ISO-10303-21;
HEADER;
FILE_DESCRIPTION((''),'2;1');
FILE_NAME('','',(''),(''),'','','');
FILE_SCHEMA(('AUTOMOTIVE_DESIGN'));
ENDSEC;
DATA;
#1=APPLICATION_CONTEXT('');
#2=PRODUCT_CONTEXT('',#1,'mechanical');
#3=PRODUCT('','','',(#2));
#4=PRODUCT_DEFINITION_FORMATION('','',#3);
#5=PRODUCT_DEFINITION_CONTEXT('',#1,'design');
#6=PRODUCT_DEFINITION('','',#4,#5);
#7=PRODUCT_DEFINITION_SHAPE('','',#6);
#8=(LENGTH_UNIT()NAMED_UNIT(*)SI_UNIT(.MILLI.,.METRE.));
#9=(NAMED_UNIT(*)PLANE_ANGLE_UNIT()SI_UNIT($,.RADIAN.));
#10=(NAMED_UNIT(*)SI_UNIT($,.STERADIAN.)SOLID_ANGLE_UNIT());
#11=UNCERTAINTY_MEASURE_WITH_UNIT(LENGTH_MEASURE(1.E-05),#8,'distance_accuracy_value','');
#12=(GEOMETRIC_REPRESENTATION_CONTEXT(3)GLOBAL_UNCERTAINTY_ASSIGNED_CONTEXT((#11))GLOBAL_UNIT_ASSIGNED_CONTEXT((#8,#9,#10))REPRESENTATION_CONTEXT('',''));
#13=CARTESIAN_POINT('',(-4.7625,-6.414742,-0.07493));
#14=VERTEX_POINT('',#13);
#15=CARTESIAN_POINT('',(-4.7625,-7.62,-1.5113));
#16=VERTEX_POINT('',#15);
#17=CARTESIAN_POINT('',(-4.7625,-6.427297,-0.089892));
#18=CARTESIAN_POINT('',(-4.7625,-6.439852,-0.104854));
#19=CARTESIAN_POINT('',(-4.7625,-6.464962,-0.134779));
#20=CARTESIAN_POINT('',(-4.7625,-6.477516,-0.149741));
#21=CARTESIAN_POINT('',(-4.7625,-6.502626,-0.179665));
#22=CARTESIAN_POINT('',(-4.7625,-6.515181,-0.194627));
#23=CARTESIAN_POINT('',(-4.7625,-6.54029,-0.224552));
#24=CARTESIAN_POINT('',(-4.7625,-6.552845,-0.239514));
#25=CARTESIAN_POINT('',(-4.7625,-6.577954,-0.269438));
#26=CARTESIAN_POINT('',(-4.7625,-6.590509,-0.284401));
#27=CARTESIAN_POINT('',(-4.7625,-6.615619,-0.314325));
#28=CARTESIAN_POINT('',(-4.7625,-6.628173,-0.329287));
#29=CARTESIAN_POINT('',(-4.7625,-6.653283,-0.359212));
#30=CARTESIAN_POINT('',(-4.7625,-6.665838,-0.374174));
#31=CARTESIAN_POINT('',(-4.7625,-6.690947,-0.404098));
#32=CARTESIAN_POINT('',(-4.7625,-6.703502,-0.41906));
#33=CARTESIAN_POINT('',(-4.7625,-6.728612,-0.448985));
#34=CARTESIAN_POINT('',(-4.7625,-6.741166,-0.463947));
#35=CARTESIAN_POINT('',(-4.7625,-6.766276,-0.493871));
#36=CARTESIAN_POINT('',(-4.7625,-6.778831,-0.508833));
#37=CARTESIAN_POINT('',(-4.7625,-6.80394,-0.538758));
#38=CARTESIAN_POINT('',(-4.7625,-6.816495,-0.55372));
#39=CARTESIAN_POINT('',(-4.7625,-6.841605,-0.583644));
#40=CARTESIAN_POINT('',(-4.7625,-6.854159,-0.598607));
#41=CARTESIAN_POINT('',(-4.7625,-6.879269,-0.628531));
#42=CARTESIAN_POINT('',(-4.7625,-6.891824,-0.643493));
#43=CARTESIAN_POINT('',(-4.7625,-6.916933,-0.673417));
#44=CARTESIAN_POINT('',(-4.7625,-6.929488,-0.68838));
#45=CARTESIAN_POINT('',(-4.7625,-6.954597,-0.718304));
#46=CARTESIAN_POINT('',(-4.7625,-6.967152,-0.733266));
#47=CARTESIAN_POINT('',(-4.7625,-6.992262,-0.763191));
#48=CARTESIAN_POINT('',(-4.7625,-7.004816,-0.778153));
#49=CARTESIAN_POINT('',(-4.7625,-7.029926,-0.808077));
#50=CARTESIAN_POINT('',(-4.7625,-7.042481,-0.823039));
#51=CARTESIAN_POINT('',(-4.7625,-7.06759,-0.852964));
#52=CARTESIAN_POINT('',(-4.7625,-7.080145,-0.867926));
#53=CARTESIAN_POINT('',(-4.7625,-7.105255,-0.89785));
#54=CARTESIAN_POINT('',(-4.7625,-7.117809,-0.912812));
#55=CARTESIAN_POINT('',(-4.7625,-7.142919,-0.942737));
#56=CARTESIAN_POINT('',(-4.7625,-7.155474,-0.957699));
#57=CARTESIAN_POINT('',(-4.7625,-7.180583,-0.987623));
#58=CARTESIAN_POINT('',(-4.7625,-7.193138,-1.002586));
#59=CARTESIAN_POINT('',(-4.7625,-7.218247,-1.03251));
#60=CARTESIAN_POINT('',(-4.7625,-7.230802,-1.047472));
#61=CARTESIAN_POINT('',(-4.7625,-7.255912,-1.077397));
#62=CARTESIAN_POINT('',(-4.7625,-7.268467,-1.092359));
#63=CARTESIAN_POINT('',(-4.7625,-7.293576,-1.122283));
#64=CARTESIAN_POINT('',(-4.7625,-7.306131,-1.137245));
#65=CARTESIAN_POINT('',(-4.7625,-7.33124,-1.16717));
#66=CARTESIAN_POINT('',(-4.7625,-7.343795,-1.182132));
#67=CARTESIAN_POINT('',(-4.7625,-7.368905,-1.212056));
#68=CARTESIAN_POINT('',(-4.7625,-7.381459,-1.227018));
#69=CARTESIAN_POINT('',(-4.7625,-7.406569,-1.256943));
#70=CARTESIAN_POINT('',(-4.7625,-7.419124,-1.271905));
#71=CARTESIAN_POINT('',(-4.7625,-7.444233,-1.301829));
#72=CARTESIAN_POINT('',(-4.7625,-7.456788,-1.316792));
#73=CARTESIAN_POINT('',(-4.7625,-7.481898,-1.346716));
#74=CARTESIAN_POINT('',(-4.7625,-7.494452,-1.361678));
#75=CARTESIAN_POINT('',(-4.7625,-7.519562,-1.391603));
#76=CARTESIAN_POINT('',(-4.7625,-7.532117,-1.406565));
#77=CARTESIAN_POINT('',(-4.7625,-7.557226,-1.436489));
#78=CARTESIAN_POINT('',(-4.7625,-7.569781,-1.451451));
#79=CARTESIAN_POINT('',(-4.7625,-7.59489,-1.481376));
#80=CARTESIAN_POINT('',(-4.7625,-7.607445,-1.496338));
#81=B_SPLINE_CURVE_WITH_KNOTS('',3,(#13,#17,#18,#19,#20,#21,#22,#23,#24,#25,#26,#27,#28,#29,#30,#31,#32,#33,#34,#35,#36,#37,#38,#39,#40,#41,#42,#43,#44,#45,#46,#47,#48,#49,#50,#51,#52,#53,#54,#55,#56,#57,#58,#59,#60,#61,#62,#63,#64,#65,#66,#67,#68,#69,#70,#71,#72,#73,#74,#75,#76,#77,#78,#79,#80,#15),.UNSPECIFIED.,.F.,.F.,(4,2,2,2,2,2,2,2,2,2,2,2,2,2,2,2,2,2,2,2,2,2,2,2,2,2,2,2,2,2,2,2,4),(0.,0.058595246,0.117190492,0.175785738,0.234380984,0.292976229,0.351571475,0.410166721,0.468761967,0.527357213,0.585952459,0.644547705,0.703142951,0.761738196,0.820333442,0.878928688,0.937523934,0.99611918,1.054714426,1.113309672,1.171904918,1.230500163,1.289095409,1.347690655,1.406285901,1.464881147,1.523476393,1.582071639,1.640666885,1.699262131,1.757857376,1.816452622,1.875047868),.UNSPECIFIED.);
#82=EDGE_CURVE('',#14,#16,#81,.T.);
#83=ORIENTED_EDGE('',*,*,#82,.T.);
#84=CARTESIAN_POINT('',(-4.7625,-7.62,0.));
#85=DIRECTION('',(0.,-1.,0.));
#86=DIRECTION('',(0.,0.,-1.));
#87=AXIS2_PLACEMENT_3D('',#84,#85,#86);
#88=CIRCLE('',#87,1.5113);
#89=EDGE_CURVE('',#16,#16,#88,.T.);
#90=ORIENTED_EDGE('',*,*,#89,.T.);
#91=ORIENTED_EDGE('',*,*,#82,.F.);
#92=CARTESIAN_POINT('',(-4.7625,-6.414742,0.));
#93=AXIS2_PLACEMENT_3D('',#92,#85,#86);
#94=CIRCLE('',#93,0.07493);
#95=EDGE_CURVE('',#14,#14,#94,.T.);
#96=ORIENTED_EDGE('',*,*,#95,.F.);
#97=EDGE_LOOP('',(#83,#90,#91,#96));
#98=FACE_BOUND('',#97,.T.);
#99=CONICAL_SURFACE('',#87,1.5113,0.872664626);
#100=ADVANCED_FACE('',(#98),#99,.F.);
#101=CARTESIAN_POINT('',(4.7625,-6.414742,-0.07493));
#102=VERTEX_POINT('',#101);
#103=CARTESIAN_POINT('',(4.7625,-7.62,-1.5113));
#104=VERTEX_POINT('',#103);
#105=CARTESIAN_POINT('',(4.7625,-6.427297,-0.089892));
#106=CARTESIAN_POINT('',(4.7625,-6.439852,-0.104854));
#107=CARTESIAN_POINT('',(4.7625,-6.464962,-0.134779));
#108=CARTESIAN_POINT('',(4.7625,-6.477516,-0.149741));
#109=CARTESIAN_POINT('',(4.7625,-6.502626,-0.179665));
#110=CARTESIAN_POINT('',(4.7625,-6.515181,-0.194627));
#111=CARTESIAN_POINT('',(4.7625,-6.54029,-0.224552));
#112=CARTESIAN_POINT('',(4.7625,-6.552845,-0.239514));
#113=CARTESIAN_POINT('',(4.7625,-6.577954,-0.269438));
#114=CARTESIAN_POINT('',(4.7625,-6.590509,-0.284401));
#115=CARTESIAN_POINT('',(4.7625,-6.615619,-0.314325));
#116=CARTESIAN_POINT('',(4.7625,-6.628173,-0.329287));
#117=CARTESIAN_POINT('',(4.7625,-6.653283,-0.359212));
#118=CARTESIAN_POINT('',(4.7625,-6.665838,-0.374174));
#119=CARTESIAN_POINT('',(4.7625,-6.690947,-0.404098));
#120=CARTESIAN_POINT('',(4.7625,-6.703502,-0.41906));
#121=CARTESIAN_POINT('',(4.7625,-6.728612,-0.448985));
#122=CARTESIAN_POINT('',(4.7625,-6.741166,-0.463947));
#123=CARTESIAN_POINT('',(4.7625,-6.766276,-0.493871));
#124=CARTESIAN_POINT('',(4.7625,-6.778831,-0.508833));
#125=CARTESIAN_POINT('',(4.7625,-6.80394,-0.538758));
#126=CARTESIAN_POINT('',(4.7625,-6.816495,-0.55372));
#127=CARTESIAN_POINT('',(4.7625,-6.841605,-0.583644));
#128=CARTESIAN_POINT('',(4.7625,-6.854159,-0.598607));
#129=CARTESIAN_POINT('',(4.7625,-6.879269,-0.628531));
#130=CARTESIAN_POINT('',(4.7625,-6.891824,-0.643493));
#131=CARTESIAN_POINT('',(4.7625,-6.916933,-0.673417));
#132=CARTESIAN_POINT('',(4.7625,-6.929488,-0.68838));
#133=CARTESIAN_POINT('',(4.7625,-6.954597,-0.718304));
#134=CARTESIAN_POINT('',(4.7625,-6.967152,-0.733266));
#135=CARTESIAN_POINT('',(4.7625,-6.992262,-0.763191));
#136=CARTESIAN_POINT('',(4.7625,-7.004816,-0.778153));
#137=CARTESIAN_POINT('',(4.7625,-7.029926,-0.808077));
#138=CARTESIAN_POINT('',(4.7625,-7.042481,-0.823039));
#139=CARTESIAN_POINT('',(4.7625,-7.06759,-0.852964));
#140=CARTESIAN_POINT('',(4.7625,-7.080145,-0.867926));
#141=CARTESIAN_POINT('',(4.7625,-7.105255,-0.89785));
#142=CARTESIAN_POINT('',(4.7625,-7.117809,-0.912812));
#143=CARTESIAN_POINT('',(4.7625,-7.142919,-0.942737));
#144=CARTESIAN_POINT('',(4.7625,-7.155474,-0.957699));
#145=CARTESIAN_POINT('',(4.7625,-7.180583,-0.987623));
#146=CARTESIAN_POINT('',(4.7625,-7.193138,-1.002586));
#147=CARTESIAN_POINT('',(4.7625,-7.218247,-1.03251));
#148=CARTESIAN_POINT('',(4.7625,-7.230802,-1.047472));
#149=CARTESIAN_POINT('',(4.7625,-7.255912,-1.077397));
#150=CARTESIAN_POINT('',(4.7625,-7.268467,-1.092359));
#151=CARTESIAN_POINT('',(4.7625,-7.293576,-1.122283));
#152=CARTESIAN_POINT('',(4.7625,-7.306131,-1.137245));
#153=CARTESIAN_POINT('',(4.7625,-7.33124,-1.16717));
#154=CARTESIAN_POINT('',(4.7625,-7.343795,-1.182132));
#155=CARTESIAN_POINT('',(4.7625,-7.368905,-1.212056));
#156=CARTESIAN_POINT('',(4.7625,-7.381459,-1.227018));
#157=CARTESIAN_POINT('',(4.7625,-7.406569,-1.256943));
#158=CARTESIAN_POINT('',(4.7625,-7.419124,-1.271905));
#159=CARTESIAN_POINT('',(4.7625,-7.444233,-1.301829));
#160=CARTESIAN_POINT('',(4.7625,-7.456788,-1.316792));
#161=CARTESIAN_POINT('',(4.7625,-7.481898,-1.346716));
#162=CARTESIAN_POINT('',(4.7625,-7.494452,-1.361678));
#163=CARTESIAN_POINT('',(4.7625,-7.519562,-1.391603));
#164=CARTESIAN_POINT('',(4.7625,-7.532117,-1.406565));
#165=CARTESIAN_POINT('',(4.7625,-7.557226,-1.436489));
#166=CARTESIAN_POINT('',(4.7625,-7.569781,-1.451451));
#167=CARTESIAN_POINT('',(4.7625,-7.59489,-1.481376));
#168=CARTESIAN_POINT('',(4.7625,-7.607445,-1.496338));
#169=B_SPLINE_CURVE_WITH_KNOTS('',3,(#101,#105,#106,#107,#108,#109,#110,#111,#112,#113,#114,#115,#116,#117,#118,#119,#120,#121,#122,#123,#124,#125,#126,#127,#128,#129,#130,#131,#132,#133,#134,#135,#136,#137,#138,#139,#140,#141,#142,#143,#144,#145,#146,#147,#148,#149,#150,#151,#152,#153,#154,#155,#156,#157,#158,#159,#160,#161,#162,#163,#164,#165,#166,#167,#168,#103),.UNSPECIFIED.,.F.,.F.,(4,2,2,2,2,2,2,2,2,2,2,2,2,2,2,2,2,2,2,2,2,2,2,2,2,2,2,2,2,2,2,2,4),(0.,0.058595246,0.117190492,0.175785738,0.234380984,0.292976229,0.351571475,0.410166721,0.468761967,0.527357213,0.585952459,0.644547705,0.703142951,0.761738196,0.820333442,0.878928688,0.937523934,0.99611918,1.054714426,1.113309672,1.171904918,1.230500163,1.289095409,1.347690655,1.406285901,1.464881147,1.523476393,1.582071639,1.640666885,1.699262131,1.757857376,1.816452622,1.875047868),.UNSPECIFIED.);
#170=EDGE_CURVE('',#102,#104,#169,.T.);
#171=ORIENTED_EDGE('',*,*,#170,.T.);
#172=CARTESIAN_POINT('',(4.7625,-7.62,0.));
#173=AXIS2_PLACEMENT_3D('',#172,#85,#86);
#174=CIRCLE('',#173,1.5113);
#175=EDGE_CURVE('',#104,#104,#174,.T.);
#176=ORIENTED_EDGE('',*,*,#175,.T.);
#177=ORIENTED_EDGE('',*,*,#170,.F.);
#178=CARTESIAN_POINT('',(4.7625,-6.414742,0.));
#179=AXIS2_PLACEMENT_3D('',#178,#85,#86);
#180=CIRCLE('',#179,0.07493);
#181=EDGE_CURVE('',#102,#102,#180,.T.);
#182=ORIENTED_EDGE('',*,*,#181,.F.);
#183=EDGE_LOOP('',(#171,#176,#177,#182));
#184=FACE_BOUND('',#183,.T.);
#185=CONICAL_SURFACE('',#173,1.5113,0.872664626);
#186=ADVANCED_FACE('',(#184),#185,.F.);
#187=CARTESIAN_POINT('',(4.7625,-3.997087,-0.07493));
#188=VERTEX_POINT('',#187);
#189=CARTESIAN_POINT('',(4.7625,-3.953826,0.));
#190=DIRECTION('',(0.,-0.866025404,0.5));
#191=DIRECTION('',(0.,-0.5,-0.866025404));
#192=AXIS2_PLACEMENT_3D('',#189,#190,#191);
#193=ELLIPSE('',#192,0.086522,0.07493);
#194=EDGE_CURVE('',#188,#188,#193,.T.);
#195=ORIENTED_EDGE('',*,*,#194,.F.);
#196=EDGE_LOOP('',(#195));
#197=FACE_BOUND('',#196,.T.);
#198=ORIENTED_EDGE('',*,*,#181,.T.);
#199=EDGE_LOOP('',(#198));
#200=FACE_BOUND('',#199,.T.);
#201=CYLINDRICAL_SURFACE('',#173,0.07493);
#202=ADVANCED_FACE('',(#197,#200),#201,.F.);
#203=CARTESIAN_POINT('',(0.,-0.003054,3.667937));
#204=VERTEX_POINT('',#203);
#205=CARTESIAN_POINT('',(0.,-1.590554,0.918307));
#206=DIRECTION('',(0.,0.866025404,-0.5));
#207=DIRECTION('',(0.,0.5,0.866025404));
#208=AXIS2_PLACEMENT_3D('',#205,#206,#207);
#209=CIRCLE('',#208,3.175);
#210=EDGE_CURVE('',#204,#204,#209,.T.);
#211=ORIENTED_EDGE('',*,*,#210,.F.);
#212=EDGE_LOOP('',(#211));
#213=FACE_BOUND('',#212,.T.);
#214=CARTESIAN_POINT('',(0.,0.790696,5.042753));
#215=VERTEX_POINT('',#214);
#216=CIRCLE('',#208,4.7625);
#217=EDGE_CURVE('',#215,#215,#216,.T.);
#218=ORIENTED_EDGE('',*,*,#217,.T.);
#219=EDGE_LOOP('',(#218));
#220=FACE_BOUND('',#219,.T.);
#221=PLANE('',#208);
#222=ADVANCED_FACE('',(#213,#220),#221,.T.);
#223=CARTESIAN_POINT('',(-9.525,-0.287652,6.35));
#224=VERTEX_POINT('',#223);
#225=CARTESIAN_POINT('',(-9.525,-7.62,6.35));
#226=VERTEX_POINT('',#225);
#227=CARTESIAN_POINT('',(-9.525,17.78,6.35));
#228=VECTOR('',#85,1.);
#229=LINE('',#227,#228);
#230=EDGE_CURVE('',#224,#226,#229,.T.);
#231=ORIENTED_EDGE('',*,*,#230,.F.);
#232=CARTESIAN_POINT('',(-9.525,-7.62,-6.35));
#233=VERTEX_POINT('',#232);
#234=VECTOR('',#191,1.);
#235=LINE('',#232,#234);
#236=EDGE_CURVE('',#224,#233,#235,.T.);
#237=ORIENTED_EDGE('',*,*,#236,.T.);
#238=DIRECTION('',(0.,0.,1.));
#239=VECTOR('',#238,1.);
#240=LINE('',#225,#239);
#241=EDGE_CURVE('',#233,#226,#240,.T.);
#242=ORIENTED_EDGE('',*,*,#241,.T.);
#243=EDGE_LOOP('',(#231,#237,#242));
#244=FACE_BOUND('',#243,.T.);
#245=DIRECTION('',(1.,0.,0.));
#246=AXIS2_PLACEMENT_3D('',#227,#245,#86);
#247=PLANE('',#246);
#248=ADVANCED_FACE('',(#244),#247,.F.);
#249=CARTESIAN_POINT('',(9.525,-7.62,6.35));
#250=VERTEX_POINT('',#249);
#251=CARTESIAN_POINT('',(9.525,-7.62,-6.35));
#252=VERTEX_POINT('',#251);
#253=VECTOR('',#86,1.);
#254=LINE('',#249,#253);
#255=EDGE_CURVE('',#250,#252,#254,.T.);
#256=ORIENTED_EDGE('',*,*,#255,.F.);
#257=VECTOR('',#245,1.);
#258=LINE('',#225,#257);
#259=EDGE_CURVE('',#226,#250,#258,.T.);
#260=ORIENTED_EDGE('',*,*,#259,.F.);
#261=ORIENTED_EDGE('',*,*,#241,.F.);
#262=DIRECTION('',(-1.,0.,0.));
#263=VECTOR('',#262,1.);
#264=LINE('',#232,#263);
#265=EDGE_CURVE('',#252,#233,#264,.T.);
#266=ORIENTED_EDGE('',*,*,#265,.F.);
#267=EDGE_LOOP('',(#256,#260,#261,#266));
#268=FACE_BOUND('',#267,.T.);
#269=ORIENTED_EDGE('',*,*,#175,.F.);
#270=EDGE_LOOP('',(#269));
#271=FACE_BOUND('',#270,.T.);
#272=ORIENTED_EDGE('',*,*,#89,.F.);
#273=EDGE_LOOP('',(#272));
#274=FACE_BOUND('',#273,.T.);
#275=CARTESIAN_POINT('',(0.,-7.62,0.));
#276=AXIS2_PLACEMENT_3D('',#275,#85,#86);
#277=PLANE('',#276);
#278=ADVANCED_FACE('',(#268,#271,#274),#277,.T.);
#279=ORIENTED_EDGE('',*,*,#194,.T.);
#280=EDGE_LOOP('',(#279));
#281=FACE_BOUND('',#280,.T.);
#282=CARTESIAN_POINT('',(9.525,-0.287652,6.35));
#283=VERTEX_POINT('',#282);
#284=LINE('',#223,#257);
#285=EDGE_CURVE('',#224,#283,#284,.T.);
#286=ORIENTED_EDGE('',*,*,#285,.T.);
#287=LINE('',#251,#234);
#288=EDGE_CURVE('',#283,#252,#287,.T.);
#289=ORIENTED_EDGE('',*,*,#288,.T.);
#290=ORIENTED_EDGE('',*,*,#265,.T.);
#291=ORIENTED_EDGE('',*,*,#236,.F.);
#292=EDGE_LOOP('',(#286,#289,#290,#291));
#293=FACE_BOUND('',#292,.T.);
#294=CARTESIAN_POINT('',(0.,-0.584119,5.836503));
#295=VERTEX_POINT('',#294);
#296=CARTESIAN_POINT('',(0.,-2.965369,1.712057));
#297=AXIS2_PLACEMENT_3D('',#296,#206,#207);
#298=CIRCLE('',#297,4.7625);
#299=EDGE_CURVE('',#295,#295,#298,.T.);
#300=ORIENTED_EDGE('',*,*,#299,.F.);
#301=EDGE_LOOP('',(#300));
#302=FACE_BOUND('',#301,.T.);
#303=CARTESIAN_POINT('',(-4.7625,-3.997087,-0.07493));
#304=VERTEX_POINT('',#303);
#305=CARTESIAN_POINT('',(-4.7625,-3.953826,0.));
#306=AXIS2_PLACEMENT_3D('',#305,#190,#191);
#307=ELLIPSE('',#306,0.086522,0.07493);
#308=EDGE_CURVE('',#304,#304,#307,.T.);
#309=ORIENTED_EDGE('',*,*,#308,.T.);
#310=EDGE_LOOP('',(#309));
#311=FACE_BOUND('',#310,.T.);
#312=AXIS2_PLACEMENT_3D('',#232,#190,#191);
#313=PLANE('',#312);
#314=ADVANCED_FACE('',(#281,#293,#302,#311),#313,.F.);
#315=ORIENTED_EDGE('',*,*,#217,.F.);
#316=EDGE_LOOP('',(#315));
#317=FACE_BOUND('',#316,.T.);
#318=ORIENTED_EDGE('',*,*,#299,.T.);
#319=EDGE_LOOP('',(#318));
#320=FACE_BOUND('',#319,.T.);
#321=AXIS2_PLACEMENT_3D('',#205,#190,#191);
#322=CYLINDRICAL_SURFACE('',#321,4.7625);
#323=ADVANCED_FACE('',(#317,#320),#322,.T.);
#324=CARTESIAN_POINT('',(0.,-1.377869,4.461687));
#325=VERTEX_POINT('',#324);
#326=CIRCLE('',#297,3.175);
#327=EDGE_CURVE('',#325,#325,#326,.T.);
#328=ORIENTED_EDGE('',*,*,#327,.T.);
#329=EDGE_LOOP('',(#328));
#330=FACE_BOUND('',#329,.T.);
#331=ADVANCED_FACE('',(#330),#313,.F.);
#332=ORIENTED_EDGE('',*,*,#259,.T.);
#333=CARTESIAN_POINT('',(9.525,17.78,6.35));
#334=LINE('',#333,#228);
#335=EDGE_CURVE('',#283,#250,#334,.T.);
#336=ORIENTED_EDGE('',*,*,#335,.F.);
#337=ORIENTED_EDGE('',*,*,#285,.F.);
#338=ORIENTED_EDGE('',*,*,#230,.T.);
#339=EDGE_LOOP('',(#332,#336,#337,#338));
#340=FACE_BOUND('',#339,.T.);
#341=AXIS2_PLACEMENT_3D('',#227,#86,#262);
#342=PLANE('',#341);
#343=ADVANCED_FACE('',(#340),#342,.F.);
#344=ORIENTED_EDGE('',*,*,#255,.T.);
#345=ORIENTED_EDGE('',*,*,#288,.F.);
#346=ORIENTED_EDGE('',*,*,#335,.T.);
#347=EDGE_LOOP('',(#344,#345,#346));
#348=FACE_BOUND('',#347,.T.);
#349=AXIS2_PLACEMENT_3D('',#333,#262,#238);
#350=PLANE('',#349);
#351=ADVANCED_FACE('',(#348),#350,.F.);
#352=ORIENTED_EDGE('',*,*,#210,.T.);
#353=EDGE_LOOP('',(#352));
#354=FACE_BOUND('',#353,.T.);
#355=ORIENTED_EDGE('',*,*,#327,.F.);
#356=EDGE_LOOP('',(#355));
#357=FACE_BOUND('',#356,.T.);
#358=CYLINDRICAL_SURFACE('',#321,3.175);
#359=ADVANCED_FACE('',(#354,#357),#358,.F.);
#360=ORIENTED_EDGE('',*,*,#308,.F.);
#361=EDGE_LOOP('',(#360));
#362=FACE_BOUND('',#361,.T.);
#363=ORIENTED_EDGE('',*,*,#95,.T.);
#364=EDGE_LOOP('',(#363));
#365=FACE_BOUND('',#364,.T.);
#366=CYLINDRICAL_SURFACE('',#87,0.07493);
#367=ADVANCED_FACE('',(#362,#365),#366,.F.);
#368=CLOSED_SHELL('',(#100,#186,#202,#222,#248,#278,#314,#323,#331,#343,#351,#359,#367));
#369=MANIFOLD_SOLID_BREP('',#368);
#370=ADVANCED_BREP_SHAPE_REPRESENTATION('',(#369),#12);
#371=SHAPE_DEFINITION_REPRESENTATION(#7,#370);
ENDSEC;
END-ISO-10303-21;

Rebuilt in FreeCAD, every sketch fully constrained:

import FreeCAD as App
import Part
import Sketcher
Q = App.Units.Quantity

doc = App.newDocument("Part")
body = doc.addObject("PartDesign::Body", "Body")

sketch1 = body.newObject("Sketcher::SketchObject", "Sketch")
sketch1.AttachmentSupport = (doc.getObject("XZ_Plane"), [""])
sketch1.MapMode = "FlatFace"
sketch1.AttachmentOffset = App.Placement(App.Vector(0, 0, 0.3 * 25.4), App.Rotation())
sketch1.addGeometry(Part.LineSegment(App.Vector(-10, -6, 0), App.Vector(-10, 6, 0)), False)
sketch1.addGeometry(Part.LineSegment(App.Vector(-10, 6, 0), App.Vector(10, 6, 0)), False)
sketch1.addGeometry(Part.LineSegment(App.Vector(10, 6, 0), App.Vector(10, -6, 0)), False)
sketch1.addGeometry(Part.LineSegment(App.Vector(10, -6, 0), App.Vector(-10, -6, 0)), False)
sketch1.addConstraint(Sketcher.Constraint("Coincident", 0, 2, 1, 1))
sketch1.addConstraint(Sketcher.Constraint("Coincident", 1, 2, 2, 1))
sketch1.addConstraint(Sketcher.Constraint("Coincident", 2, 2, 3, 1))
sketch1.addConstraint(Sketcher.Constraint("Coincident", 3, 2, 0, 1))
sketch1.addConstraint(Sketcher.Constraint("Vertical", 0))
sketch1.addConstraint(Sketcher.Constraint("Horizontal", 1))
sketch1.addConstraint(Sketcher.Constraint("Vertical", 2))
sketch1.addConstraint(Sketcher.Constraint("Horizontal", 3))
sketch1.addConstraint(Sketcher.Constraint("Symmetric", 0, 2, 2, 2, -1, 1))
sketch1.addConstraint(Sketcher.Constraint("DistanceY", 0, 1, 0, 2, Q("0.5 in")))
sketch1.addConstraint(Sketcher.Constraint("DistanceX", 1, 1, 1, 2, Q("0.75 in")))
pad1 = body.newObject("PartDesign::Pad", "Pad")
pad1.Profile = sketch1
pad1.Length = Q("1 in")
pad1.Reversed = True

sketch2 = body.newObject("Sketcher::SketchObject", "Sketch001")
sketch2.AttachmentSupport = (doc.getObject("YZ_Plane"), [""])
sketch2.MapMode = "FlatFace"
sketch2.AttachmentOffset = App.Placement(App.Vector(0, 0, 0.375 * 25.4), App.Rotation())
sketch2.addGeometry(Part.LineSegment(App.Vector(0, 6, 0), App.Vector(-8, -6, 0)), False)
sketch2.addGeometry(Part.LineSegment(App.Vector(-8, -6, 0), App.Vector(23, -6, 0)), False)
sketch2.addGeometry(Part.LineSegment(App.Vector(23, -6, 0), App.Vector(23, 6, 0)), False)
sketch2.addGeometry(Part.LineSegment(App.Vector(23, 6, 0), App.Vector(0, 6, 0)), False)
sketch2.addConstraint(Sketcher.Constraint("Coincident", 0, 2, 1, 1))
sketch2.addConstraint(Sketcher.Constraint("Coincident", 1, 2, 2, 1))
sketch2.addConstraint(Sketcher.Constraint("Coincident", 2, 2, 3, 1))
sketch2.addConstraint(Sketcher.Constraint("Coincident", 3, 2, 0, 1))
sketch2.addConstraint(Sketcher.Constraint("Horizontal", 1))
sketch2.addConstraint(Sketcher.Constraint("Vertical", 2))
sketch2.addConstraint(Sketcher.Constraint("Horizontal", 3))
sketch2.addConstraint(Sketcher.Constraint("DistanceX", 1, 1, 1, 2, Q("1.2 in")))
sketch2.addConstraint(Sketcher.Constraint("DistanceY", 2, 1, 2, 2, Q("0.5 in")))
sketch2.addConstraint(Sketcher.Constraint("Angle", 0, Q("-120 deg")))
sketch2.addConstraint(Sketcher.Constraint("DistanceX", 0, 2, -1, 1, Q("0.3 in")))
sketch2.addConstraint(Sketcher.Constraint("DistanceY", 0, 2, -1, 1, Q("0.25 in")))
pocket1 = body.newObject("PartDesign::Pocket", "Pocket")
pocket1.Profile = sketch2
pocket1.Type = "ThroughAll"

sketch3 = body.newObject("Sketcher::SketchObject", "Sketch002")
sketch3.Placement = App.Placement(App.Vector(0, -2.965369, 1.712057), App.Rotation(App.Vector(1, 0, 0), App.Vector(0, -0.5, -0.866025404), App.Vector(0, 0.866025404, -0.5), "ZXY"))
sketch3.addGeometry(Part.Circle(App.Vector(0, 0, 0), App.Vector(0, 0, 1), 4.8), False)
sketch3.addGeometry(Part.Circle(App.Vector(0, 0, 0), App.Vector(0, 0, 1), 3.2), False)
sketch3.addConstraint(Sketcher.Constraint("Coincident", 0, 3, -1, 1))
sketch3.addConstraint(Sketcher.Constraint("Coincident", 1, 3, -1, 1))
sketch3.addConstraint(Sketcher.Constraint("Diameter", 1, Q("0.25 in")))
sketch3.addConstraint(Sketcher.Constraint("Diameter", 0, Q("0.375 in")))
pad2 = body.newObject("PartDesign::Pad", "Pad001")
pad2.Profile = sketch3
pad2.Length = Q("0.0625 in")

sketch4 = body.newObject("Sketcher::SketchObject", "Sketch003")
sketch4.AttachmentSupport = (doc.getObject("XZ_Plane"), [""])
sketch4.MapMode = "FlatFace"
sketch4.AttachmentOffset = App.Placement(App.Vector(0, 0, 0.3 * 25.4), App.Rotation())
sketch4.addGeometry(Part.Circle(App.Vector(-4.76, 0, 0), App.Vector(0, 0, 1), 0.07), False)
sketch4.addGeometry(Part.Circle(App.Vector(4.76, 0, 0), App.Vector(0, 0, 1), 0.07), False)
sketch4.addConstraint(Sketcher.Constraint("Equal", 0, 1))
sketch4.addConstraint(Sketcher.Constraint("Symmetric", 0, 3, 1, 3, -1, 1))
sketch4.addConstraint(Sketcher.Constraint("PointOnObject", 0, 3, -1))
sketch4.addConstraint(Sketcher.Constraint("Diameter", 0, Q("0.0059 in")))
sketch4.addConstraint(Sketcher.Constraint("DistanceX", 0, 3, -1, 1, Q("0.1875 in")))
doc.recompute()
hole = body.newObject("PartDesign::Hole", "Hole")
hole.Profile = sketch4
hole.ThreadType = "None"
hole.Diameter = Q("0.0059 in")
hole.DepthType = "ThroughAll"
hole.HoleCutType = "Countersink"
hole.HoleCutDiameter = Q("0.119 in")
hole.HoleCutCountersinkAngle = 100

doc.recompute()
